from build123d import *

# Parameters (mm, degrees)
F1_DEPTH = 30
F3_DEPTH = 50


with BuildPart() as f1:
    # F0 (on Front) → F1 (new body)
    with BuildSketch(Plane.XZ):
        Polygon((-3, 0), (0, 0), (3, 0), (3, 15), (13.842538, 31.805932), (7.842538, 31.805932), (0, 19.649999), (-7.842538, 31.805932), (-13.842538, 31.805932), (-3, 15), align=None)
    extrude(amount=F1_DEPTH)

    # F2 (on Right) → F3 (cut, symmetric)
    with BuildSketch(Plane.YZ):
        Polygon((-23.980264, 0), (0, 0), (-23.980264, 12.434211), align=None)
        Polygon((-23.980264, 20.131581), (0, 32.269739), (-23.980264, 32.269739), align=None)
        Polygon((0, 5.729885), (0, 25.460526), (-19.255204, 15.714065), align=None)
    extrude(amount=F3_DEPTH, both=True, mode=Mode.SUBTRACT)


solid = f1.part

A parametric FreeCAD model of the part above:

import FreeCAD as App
import Part
import Sketcher
from FreeCAD import Vector

doc = App.newDocument("Part")
params = doc.addObject("Spreadsheet::Sheet", "Params")
for row, (alias, value) in enumerate([
    ("sketch1_width", "6 mm"),
    ("sketch1_height", "15 mm"),
    ("sketch1_length", "20 mm"),
    ("pad1_length", "30 mm"),
    ("pocket1_length", "100 mm"),
], start=1):
    params.set(f"A{row}", alias)
    params.set(f"B{row}", "=" + value)
    params.setAlias(f"B{row}", alias)

body = doc.addObject("PartDesign::Body", "Body")

# Sketch on XZ plane
sketch1 = doc.addObject("Sketcher::SketchObject", "Sketch")
body.addObject(sketch1)
sketch1.AttachmentSupport = (doc.XZ_Plane, [""])
sketch1.MapMode = "FlatFace"
sketch1.addGeometry([
    Part.LineSegment(Vector(-3, 0, 0), Vector(3, 0, 0)),  # 0
    Part.LineSegment(Vector(3, 0, 0), Vector(3, 15, 0)),  # 1
    Part.LineSegment(Vector(3, 15, 0), Vector(13.842538, 31.805932, 0)),  # 2
    Part.LineSegment(Vector(13.842538, 31.805932, 0), Vector(7.842538, 31.805932, 0)),  # 3
    Part.LineSegment(Vector(7.842538, 31.805932, 0), Vector(0, 19.649999, 0)),  # 4
    Part.LineSegment(Vector(0, 19.649999, 0), Vector(-7.842538, 31.805932, 0)),  # 5
    Part.LineSegment(Vector(-7.842538, 31.805932, 0), Vector(-13.842538, 31.805932, 0)),  # 6
    Part.LineSegment(Vector(-13.842538, 31.805932, 0), Vector(-3, 15, 0)),  # 7
    Part.LineSegment(Vector(-3, 15, 0), Vector(-3, 0, 0)),  # 8
], False)
sketch1.addConstraint([
    Sketcher.Constraint("Coincident", 0, 2, 1, 1),
    Sketcher.Constraint("Coincident", 1, 2, 2, 1),
    Sketcher.Constraint("Coincident", 2, 2, 3, 1),
    Sketcher.Constraint("Coincident", 3, 2, 4, 1),
    Sketcher.Constraint("Coincident", 4, 2, 5, 1),
    Sketcher.Constraint("Coincident", 5, 2, 6, 1),
    Sketcher.Constraint("Coincident", 6, 2, 7, 1),
    Sketcher.Constraint("Coincident", 7, 2, 8, 1),
    Sketcher.Constraint("Coincident", 8, 2, 0, 1),
    Sketcher.Constraint("Horizontal", 0),
    Sketcher.Constraint("Vertical", 1),
    Sketcher.Constraint("Horizontal", 3),
    Sketcher.Constraint("Horizontal", 6),
    Sketcher.Constraint("Vertical", 8),
    Sketcher.Constraint("Symmetric", 0, 2, 8, 2, -1, 1),
    Sketcher.Constraint("Symmetric", 3, 2, 5, 2, -2),
    Sketcher.Constraint("PointOnObject", 4, 2, -2),
    Sketcher.Constraint("Parallel", 2, 4),
    Sketcher.Constraint("Parallel", 5, 7),
    Sketcher.Constraint("Horizontal", 1, 2, 7, 2),
    Sketcher.Constraint("Equal", 0, 3),
    Sketcher.Constraint("DistanceX", 0, 1, 0, 2, 6.0),
    Sketcher.Constraint("DistanceY", 1, 1, 1, 2, 15.0),
    Sketcher.Constraint("Distance", 2, 20.0),
    Sketcher.Constraint("DistanceY", -1, 1, 4, 2, 19.649999),
])
sketch1.setExpression("Constraints[21]", "Params.sketch1_width")
sketch1.setExpression("Constraints[22]", "Params.sketch1_height")
sketch1.setExpression("Constraints[23]", "Params.sketch1_length")
pad1 = doc.addObject("PartDesign::Pad", "Pad")
body.addObject(pad1)
pad1.Profile = sketch1
pad1.setExpression("Length", "Params.pad1_length")

# Sketch on YZ plane
sketch2 = doc.addObject("Sketcher::SketchObject", "Sketch001")
body.addObject(sketch2)
sketch2.AttachmentSupport = (doc.YZ_Plane, [""])
sketch2.MapMode = "FlatFace"
sketch2.addGeometry([
    Part.LineSegment(Vector(-23.980264, 0, 0), Vector(0, 0, 0)),  # 0
    Part.LineSegment(Vector(0, 0, 0), Vector(-23.980264, 12.434211, 0)),  # 1
    Part.LineSegment(Vector(-23.980264, 12.434211, 0), Vector(-23.980264, 0, 0)),  # 2
    Part.LineSegment(Vector(-23.980264, 20.131581, 0), Vector(0, 32.269739, 0)),  # 3
    Part.LineSegment(Vector(0, 32.269739, 0), Vector(-23.980264, 32.269739, 0)),  # 4
    Part.LineSegment(Vector(-23.980264, 32.269739, 0), Vector(-23.980264, 20.131581, 0)),  # 5
    Part.LineSegment(Vector(0, 5.729885, 0), Vector(0, 25.460526, 0)),  # 6
    Part.LineSegment(Vector(0, 25.460526, 0), Vector(-19.255204, 15.714065, 0)),  # 7
    Part.LineSegment(Vector(-19.255204, 15.714065, 0), Vector(0, 5.729885, 0)),  # 8
], False)
sketch2.addConstraint([
    Sketcher.Constraint("Coincident", 0, 2, 1, 1),
    Sketcher.Constraint("Coincident", 1, 2, 2, 1),
    Sketcher.Constraint("Coincident", 2, 2, 0, 1),
    Sketcher.Constraint("Coincident", 3, 2, 4, 1),
    Sketcher.Constraint("Coincident", 4, 2, 5, 1),
    Sketcher.Constraint("Coincident", 5, 2, 3, 1),
    Sketcher.Constraint("Coincident", 6, 2, 7, 1),
    Sketcher.Constraint("Coincident", 7, 2, 8, 1),
    Sketcher.Constraint("Coincident", 8, 2, 6, 1),
    Sketcher.Constraint("Horizontal", 0),
    Sketcher.Constraint("Vertical", 2),
    Sketcher.Constraint("Horizontal", 4),
    Sketcher.Constraint("Vertical", 5),
    Sketcher.Constraint("Vertical", 6),
    Sketcher.Constraint("Coincident", 0, 2, -1, 1),
    Sketcher.Constraint("PointOnObject", 3, 2, -2),
    Sketcher.Constraint("PointOnObject", 6, 2, -2),
    Sketcher.Constraint("Parallel", 3, 7),
    Sketcher.Constraint("Parallel", 1, 8),
    Sketcher.Constraint("Vertical", 2, 2, 4, 2),
    Sketcher.Constraint("DistanceY", 2, 2, 2, 1, 12.434211),
    Sketcher.Constraint("DistanceY", 5, 2, 5, 1, 12.138158),
    Sketcher.Constraint("DistanceY", 6, 1, 6, 2, 19.730641),
    Sketcher.Constraint("Distance", 1, 27.012269),
    Sketcher.Constraint("DistanceY", -1, 1, 3, 2, 32.269739),
    Sketcher.Constraint("DistanceY", -1, 1, 6, 2, 25.460526),
])
pocket1 = doc.addObject("PartDesign::Pocket", "Pocket")
body.addObject(pocket1)
pocket1.Profile = sketch2
pocket1.setExpression("Length", "Params.pocket1_length")
pocket1.Midplane = True

doc.recompute()
